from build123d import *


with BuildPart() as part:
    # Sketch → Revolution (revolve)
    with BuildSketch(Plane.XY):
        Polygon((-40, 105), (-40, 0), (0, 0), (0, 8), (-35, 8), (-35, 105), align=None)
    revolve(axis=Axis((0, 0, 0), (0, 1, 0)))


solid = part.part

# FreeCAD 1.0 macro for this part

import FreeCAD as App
import Part
import Sketcher

V = App.Vector

doc = App.newDocument("Part")
body = doc.addObject("PartDesign::Body", "Body")

sketch1 = body.newObject("Sketcher::SketchObject", "Sketch")
sketch1.AttachmentSupport = (doc.getObject("XY_Plane"), [""])
sketch1.MapMode = "FlatFace"
sketch1.addGeometry([
    Part.LineSegment(V(-40, 105, 0), V(-40, 0, 0)),
    Part.LineSegment(V(-40, 0, 0), V(0, 0, 0)),
    Part.LineSegment(V(0, 0, 0), V(0, 8, 0)),
    Part.LineSegment(V(0, 8, 0), V(-35, 8, 0)),
    Part.LineSegment(V(-35, 8, 0), V(-35, 105, 0)),
    Part.LineSegment(V(-35, 105, 0), V(-40, 105, 0)),
], False)
sketch1.addConstraint([
    Sketcher.Constraint("Coincident", 0, 2, 1, 1),
    Sketcher.Constraint("Coincident", 1, 2, 2, 1),
    Sketcher.Constraint("Coincident", 2, 2, 3, 1),
    Sketcher.Constraint("Coincident", 3, 2, 4, 1),
    Sketcher.Constraint("Coincident", 4, 2, 5, 1),
    Sketcher.Constraint("Coincident", 5, 2, 0, 1),
    Sketcher.Constraint("Vertical", 0),
    Sketcher.Constraint("Horizontal", 1),
    Sketcher.Constraint("Vertical", 2),
    Sketcher.Constraint("Horizontal", 3),
    Sketcher.Constraint("Vertical", 4),
    Sketcher.Constraint("Horizontal", 5),
    Sketcher.Constraint("Coincident", 1, 2, -1, 1),
    Sketcher.Constraint("DistanceX", 1, 1, 1, 2, 40.0),
    Sketcher.Constraint("DistanceX", 3, 2, 3, 1, 35.0),
    Sketcher.Constraint("DistanceY", 0, 2, 0, 1, 105.0),
    Sketcher.Constraint("DistanceY", 2, 1, 2, 2, 8.0),
])
revolution = body.newObject("PartDesign::Revolution", "Revolution")
revolution.Profile = sketch1
revolution.ReferenceAxis = (sketch1, ["V_Axis"])
revolution.Angle = 360

doc.recompute()
